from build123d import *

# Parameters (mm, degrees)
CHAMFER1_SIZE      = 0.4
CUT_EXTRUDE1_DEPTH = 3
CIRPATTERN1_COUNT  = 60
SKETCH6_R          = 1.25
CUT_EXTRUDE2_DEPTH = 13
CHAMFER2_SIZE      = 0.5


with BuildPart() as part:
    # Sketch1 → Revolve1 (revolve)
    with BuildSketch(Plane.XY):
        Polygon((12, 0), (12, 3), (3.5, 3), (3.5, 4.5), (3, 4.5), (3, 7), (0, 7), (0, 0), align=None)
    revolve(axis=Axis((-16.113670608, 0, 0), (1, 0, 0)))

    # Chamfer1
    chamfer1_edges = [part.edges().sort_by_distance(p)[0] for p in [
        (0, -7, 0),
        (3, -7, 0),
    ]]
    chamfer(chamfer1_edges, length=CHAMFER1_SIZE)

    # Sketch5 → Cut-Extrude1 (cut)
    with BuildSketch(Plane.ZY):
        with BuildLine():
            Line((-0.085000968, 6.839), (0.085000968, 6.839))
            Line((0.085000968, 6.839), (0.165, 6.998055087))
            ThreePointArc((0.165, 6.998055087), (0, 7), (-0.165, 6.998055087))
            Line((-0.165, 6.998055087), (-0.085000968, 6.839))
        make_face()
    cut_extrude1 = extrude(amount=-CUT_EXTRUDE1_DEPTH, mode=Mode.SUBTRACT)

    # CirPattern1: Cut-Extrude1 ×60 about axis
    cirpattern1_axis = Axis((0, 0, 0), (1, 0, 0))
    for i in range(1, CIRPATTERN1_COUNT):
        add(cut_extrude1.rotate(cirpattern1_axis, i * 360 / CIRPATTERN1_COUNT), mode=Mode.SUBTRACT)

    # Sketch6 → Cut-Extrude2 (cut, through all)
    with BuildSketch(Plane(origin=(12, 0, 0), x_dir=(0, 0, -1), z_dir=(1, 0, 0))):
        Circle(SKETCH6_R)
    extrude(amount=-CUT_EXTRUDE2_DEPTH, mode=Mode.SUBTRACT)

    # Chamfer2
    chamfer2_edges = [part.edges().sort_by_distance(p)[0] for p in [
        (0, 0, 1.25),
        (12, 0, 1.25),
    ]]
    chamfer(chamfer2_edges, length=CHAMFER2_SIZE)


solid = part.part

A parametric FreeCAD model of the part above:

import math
import FreeCAD as App
import Part
import Sketcher


def edges_at(feature, points):
    """Names of the edges that pass closest to the given points."""
    edges = feature.Shape.Edges
    near = lambda p: min(range(len(edges)), key=lambda i: edges[i].distToShape(Part.Vertex(*p))[0])
    return sorted({f"Edge{near(p) + 1}" for p in points})


def add_polygon(sketch, points):
    """Adds a closed chain of lines whose ends are joined by coincident constraints."""
    first, n = sketch.GeometryCount, len(points)
    for a, b in zip(points, points[1:] + points[:1]):
        sketch.addGeometry(Part.LineSegment(App.Vector(*a, 0), App.Vector(*b, 0)), False)
    for i in range(n):
        sketch.addConstraint(Sketcher.Constraint("Coincident", first + i, 2, first + (i + 1) % n, 1))

doc = App.newDocument("Part")
body = doc.addObject("PartDesign::Body", "Body")

sketch1 = body.newObject("Sketcher::SketchObject", "Sketch")
sketch1.AttachmentSupport = (doc.getObject("XY_Plane"), [""])
sketch1.MapMode = "FlatFace"
add_polygon(sketch1, [(12, 0), (12, 3), (3.5, 3), (3.5, 4.5), (3, 4.5), (3, 7), (0, 7), (0, 0)])
sketch1.addConstraint(Sketcher.Constraint("Vertical", 0))
sketch1.addConstraint(Sketcher.Constraint("Horizontal", 1))
sketch1.addConstraint(Sketcher.Constraint("Vertical", 2))
sketch1.addConstraint(Sketcher.Constraint("Horizontal", 3))
sketch1.addConstraint(Sketcher.Constraint("Vertical", 4))
sketch1.addConstraint(Sketcher.Constraint("Horizontal", 5))
sketch1.addConstraint(Sketcher.Constraint("Vertical", 6))
sketch1.addConstraint(Sketcher.Constraint("Horizontal", 7))
sketch1.addConstraint(Sketcher.Constraint("Coincident", 6, 2, -1, 1))
sketch1.addConstraint(Sketcher.Constraint("Equal", 5, 0))
sketch1.addConstraint(Sketcher.Constraint("DistanceX", 5, 2, 5, 1, 3.0))
sketch1.addConstraint(Sketcher.Constraint("DistanceX", 7, 1, 7, 2, 12.0))
sketch1.addConstraint(Sketcher.Constraint("DistanceY", 6, 2, 6, 1, 7.0))
sketch1.addConstraint(Sketcher.Constraint("DistanceX", 1, 2, 1, 1, 8.5))
sketch1.addConstraint(Sketcher.Constraint("DistanceY", 2, 1, 2, 2, 1.5))
revolution = body.newObject("PartDesign::Revolution", "Revolution")
revolution.Profile = sketch1
revolution.ReferenceAxis = (sketch1, ["H_Axis"])
revolution.Angle = 360
doc.recompute()

chamfer = body.newObject("PartDesign::Chamfer", "Chamfer")
chamfer.Base = (revolution, edges_at(revolution, [(0, -7, 0), (3, -7, 0)]))
chamfer.Size = 0.4

sketch2 = body.newObject("Sketcher::SketchObject", "Sketch001")
sketch2.AttachmentSupport = (doc.getObject("YZ_Plane"), [""])
sketch2.MapMode = "FlatFace"
sketch2.addGeometry(Part.LineSegment(App.Vector(6.84, -0.09, 0), App.Vector(6.84, 0.09, 0)), False)
sketch2.addGeometry(Part.LineSegment(App.Vector(6.84, 0.09, 0), App.Vector(7, 0.17, 0)), False)
sketch2.addGeometry(Part.ArcOfCircle(Part.Circle(App.Vector(0, 0, 0), App.Vector(0, 0, 1), 7), math.radians(-1.35), math.radians(1.35)), False)
sketch2.addGeometry(Part.LineSegment(App.Vector(7, -0.17, 0), App.Vector(6.84, -0.09, 0)), False)
sketch2.addConstraint(Sketcher.Constraint("Coincident", 0, 2, 1, 1))
sketch2.addConstraint(Sketcher.Constraint("Coincident", 1, 2, 2, 2))
sketch2.addConstraint(Sketcher.Constraint("Coincident", 2, 1, 3, 1))
sketch2.addConstraint(Sketcher.Constraint("Coincident", 3, 2, 0, 1))
sketch2.addConstraint(Sketcher.Constraint("Vertical", 0))
sketch2.addConstraint(Sketcher.Constraint("Coincident", 2, 3, -1, 1))
sketch2.addConstraint(Sketcher.Constraint("Vertical", 1, 2, 2, 1))
sketch2.addConstraint(Sketcher.Constraint("Equal", 1, 3))
sketch2.addConstraint(Sketcher.Constraint("Radius", 2, 7.0))
sketch2.addConstraint(Sketcher.Constraint("DistanceY", 0, 1, 0, 2, 0.170002))
sketch2.addConstraint(Sketcher.Constraint("DistanceY", 0, 2, 1, 2, 0.079999))
sketch2.addConstraint(Sketcher.Constraint("DistanceX", -1, 1, 0, 2, 6.839))
pocket1 = body.newObject("PartDesign::Pocket", "Pocket")
pocket1.Profile = sketch2
pocket1.Length = 3
pocket1.Reversed = True
doc.recompute()

polarpattern = body.newObject("PartDesign::PolarPattern", "PolarPattern")
polarpattern.Originals = [pocket1]
polarpattern.Axis = (doc.getObject("X_Axis"), [""])
polarpattern.Angle = 360
polarpattern.Occurrences = 60
body.Tip = polarpattern

sketch3 = body.newObject("Sketcher::SketchObject", "Sketch002")
sketch3.AttachmentSupport = (doc.getObject("YZ_Plane"), [""])
sketch3.MapMode = "FlatFace"
sketch3.AttachmentOffset = App.Placement(App.Vector(0, 0, 12), App.Rotation())
sketch3.addGeometry(Part.Circle(App.Vector(0, 0, 0), App.Vector(0, 0, 1), 1.2), False)
sketch3.addConstraint(Sketcher.Constraint("Coincident", 0, 3, -1, 1))
sketch3.addConstraint(Sketcher.Constraint("Diameter", 0, 2.5))
pocket2 = body.newObject("PartDesign::Pocket", "Pocket001")
pocket2.Profile = sketch3
pocket2.Type = "ThroughAll"
doc.recompute()

chamfer2 = body.newObject("PartDesign::Chamfer", "Chamfer001")
chamfer2.Base = (pocket2, edges_at(pocket2, [(0, 0, 1.25), (12, 0, 1.25)]))
chamfer2.Size = 0.5

doc.recompute()
